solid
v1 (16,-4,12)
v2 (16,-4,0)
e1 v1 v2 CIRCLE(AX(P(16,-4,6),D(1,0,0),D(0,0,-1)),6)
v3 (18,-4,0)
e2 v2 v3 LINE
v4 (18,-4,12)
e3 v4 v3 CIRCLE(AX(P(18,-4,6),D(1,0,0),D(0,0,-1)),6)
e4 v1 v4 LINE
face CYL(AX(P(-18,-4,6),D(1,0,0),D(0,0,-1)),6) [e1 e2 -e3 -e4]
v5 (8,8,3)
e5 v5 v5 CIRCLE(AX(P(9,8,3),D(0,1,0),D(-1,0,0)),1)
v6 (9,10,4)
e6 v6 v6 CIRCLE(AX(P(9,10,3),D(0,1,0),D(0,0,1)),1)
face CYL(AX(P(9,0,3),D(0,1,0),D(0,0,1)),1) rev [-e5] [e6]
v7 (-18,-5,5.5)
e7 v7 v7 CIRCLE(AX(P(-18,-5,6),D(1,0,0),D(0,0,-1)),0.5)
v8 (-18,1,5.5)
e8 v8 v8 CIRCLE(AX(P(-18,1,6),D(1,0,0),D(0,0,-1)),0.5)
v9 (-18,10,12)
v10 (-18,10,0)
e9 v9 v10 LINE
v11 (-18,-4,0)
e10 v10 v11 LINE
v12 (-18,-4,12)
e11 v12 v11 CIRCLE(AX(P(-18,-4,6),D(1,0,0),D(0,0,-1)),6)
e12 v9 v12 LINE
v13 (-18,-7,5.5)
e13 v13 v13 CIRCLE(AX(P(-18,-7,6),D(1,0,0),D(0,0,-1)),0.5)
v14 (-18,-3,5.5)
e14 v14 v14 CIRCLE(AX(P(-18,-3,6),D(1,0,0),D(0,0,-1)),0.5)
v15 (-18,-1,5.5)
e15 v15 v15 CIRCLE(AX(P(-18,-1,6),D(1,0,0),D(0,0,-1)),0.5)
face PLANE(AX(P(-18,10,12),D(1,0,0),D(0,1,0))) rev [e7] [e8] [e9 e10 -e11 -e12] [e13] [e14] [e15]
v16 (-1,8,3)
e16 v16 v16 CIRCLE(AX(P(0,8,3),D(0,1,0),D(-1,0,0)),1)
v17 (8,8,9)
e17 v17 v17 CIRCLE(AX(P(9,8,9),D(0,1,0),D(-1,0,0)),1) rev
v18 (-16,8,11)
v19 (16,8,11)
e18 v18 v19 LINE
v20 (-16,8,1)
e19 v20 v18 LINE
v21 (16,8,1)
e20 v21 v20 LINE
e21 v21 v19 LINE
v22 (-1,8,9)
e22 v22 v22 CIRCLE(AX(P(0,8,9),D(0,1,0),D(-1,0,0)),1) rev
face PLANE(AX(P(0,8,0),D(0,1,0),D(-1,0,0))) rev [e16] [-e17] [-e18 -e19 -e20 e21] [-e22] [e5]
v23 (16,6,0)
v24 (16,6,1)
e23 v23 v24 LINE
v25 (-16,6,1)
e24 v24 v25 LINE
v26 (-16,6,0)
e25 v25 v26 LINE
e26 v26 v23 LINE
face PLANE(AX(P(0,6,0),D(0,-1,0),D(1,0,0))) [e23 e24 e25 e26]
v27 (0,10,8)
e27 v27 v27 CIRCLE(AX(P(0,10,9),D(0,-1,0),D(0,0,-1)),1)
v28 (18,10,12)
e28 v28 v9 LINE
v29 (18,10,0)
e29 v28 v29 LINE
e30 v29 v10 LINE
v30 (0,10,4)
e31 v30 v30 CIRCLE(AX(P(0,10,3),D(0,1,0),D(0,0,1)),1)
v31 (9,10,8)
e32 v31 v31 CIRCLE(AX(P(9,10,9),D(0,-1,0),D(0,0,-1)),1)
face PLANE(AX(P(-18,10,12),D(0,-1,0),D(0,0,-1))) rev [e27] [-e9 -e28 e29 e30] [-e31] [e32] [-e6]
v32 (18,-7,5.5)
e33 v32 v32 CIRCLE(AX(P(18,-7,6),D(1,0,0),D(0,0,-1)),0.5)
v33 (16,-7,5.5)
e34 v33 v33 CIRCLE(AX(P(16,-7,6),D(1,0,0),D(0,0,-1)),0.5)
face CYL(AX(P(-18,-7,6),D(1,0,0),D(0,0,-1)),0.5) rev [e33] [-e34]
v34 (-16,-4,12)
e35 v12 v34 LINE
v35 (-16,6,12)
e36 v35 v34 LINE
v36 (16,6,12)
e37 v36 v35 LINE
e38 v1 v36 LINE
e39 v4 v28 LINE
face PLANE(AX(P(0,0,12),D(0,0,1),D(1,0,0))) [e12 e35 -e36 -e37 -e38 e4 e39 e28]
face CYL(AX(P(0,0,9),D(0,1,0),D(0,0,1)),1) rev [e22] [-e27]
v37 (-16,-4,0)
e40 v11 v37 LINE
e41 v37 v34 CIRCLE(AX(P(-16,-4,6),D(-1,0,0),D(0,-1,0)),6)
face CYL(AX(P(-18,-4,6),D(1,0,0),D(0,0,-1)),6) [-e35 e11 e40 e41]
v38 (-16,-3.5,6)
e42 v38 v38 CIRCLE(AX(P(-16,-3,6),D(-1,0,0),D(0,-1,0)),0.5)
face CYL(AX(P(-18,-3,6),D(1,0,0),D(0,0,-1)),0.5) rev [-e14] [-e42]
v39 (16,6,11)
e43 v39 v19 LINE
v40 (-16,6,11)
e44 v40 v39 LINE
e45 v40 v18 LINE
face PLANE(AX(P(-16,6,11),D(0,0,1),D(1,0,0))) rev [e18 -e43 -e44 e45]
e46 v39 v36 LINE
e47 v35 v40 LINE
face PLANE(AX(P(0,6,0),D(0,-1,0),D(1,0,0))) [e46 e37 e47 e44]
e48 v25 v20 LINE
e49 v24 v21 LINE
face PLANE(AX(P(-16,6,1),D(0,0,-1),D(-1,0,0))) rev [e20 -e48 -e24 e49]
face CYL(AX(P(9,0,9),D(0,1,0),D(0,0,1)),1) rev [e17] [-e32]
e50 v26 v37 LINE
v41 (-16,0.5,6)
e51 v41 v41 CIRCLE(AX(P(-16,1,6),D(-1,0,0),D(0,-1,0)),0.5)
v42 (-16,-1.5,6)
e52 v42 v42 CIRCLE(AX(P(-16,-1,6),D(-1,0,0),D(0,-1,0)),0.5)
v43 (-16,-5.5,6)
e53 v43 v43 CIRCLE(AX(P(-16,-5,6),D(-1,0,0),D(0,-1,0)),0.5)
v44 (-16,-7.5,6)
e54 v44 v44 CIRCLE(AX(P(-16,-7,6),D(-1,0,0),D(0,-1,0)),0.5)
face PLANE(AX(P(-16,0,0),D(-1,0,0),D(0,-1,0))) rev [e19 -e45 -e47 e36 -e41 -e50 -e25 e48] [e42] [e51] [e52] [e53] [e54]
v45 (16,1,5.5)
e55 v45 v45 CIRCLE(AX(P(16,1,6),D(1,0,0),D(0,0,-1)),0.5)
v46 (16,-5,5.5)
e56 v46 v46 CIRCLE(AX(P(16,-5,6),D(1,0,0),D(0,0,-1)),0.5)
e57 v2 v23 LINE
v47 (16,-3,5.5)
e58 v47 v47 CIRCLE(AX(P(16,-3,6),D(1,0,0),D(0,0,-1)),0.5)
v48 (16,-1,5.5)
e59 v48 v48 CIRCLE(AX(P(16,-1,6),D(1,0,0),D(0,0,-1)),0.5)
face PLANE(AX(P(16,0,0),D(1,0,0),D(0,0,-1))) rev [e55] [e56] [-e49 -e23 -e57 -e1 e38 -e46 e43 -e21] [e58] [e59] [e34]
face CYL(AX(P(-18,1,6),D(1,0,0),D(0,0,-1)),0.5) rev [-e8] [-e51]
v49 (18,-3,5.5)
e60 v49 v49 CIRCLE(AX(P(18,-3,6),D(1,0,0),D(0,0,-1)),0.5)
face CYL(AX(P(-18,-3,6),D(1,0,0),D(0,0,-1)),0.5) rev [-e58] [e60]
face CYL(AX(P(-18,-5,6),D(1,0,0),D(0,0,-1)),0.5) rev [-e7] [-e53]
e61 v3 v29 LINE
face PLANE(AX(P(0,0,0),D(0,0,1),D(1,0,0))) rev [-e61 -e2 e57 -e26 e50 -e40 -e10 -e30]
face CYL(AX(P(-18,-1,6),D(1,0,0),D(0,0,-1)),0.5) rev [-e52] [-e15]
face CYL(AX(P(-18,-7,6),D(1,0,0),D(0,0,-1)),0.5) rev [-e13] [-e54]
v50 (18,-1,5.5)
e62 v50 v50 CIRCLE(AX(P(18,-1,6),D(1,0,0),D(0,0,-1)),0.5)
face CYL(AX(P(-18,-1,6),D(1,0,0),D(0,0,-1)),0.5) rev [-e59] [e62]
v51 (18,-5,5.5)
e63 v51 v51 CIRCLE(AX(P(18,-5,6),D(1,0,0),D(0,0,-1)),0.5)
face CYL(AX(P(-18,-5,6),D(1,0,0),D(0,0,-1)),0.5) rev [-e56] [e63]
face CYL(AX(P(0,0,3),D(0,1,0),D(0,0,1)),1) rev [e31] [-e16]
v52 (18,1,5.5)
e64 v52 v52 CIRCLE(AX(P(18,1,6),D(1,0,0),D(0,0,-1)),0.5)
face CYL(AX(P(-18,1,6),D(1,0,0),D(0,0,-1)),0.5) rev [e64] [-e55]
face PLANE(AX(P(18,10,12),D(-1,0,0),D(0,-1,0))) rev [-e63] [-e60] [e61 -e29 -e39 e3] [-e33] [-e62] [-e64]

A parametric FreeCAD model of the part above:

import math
import FreeCAD as App
import Part
import Sketcher
from FreeCAD import Vector
Q = App.Units.Quantity


def add_polygon(sketch, points):
    """Adds a closed chain of lines whose ends are joined by coincident constraints."""
    first, n = sketch.GeometryCount, len(points)
    for a, b in zip(points, points[1:] + points[:1]):
        sketch.addGeometry(Part.LineSegment(App.Vector(*a, 0), App.Vector(*b, 0)), False)
    for i in range(n):
        sketch.addConstraint(Sketcher.Constraint("Coincident", first + i, 2, first + (i + 1) % n, 1))

doc = App.newDocument("Part")
body = doc.addObject("PartDesign::Body", "Body")

sketch1 = body.newObject("Sketcher::SketchObject", "Sketch")
sketch1.AttachmentSupport = (doc.getObject("XY_Plane"), [""])
sketch1.MapMode = "FlatFace"
add_polygon(sketch1, [(-18, 10), (-18, -10), (18, -10), (18, 10)])
sketch1.addConstraint([
    Sketcher.Constraint("Vertical", 0),
    Sketcher.Constraint("Horizontal", 1),
    Sketcher.Constraint("Vertical", 2),
    Sketcher.Constraint("Horizontal", 3),
    Sketcher.Constraint("Symmetric", 0, 2, 2, 2, -1, 1),
    Sketcher.Constraint("DistanceX", 1, 1, 1, 2, Q("36 mm")),
    Sketcher.Constraint("DistanceY", 0, 2, 0, 1, Q("20 mm")),
])
pad1 = body.newObject("PartDesign::Pad", "Pad")
pad1.Profile = sketch1
pad1.Length = 12

sketch2 = body.newObject("Sketcher::SketchObject", "Sketch001")
sketch2.AttachmentSupport = (doc.getObject("XY_Plane"), [""])
sketch2.MapMode = "FlatFace"
sketch2.AttachmentOffset = App.Placement(Vector(0, 0, 12), App.Rotation())
add_polygon(sketch2, [(-16, 8), (-16, -8), (16, -8), (16, 8)])
sketch2.addConstraint([
    Sketcher.Constraint("Vertical", 0),
    Sketcher.Constraint("Horizontal", 1),
    Sketcher.Constraint("Vertical", 2),
    Sketcher.Constraint("Horizontal", 3),
    Sketcher.Constraint("Symmetric", 0, 2, 2, 2, -1, 1),
    Sketcher.Constraint("DistanceX", 1, 1, 1, 2, Q("32 mm")),
    Sketcher.Constraint("DistanceY", 0, 2, 0, 1, Q("16 mm")),
])
pocket1 = body.newObject("PartDesign::Pocket", "Pocket")
pocket1.Profile = sketch2
pocket1.Length = 12

sketch3 = body.newObject("Sketcher::SketchObject", "Sketch002")
sketch3.AttachmentSupport = (doc.getObject("XZ_Plane"), [""])
sketch3.MapMode = "FlatFace"
sketch3.AttachmentOffset = App.Placement(Vector(0, 0, 8), App.Rotation())
add_polygon(sketch3, [(-16, 0), (-16, 12), (16, 12), (16, 0)])
sketch3.addConstraint([
    Sketcher.Constraint("Vertical", 0),
    Sketcher.Constraint("Horizontal", 1),
    Sketcher.Constraint("Vertical", 2),
    Sketcher.Constraint("Horizontal", 3),
    Sketcher.Constraint("Symmetric", 2, 2, 3, 2, -1, 1),
    Sketcher.Constraint("DistanceX", 1, 1, 1, 2, Q("32 mm")),
    Sketcher.Constraint("DistanceY", 0, 1, 0, 2, Q("12 mm")),
])
pocket2 = body.newObject("PartDesign::Pocket", "Pocket001")
pocket2.Profile = sketch3
pocket2.Length = 12
pocket2.Reversed = True

sketch4 = body.newObject("Sketcher::SketchObject", "Sketch003")
sketch4.AttachmentSupport = (doc.getObject("YZ_Plane"), [""])
sketch4.MapMode = "FlatFace"
sketch4.AttachmentOffset = App.Placement(Vector(0, 0, 18), App.Rotation())
sketch4.addGeometry([
    Part.LineSegment(Vector(-10, 12, 0), Vector(-10, 6, 0)),
    Part.ArcOfCircle(Part.Circle(Vector(-4, 6, 0), Vector(0, 0, 1), 6), math.radians(90), math.radians(180)),
    Part.LineSegment(Vector(-4, 12, 0), Vector(-10, 12, 0)),
    Part.LineSegment(Vector(-10, 6, 0), Vector(-10, 0, 0)),
    Part.LineSegment(Vector(-10, 0, 0), Vector(-4, 0, 0)),
    Part.ArcOfCircle(Part.Circle(Vector(-4, 6, 0), Vector(0, 0, 1), 6), math.radians(180), math.radians(270)),
], False)
sketch4.addConstraint([
    Sketcher.Constraint("Tangent", 0, 2, 1, 2),
    Sketcher.Constraint("Tangent", 1, 1, 2, 1),
    Sketcher.Constraint("Coincident", 2, 2, 0, 1),
    Sketcher.Constraint("Coincident", 3, 2, 4, 1),
    Sketcher.Constraint("Tangent", 4, 2, 5, 2),
    Sketcher.Constraint("Tangent", 5, 1, 3, 1),
    Sketcher.Constraint("Vertical", 0),
    Sketcher.Constraint("Horizontal", 2),
    Sketcher.Constraint("Vertical", 3),
    Sketcher.Constraint("Horizontal", 4),
    Sketcher.Constraint("Coincident", 5, 3, 1, 3),
    Sketcher.Constraint("Equal", 1, 5),
    Sketcher.Constraint("PointOnObject", 3, 2, -1),
    Sketcher.Constraint("Radius", 1, Q("6 mm")),
    Sketcher.Constraint("DistanceX", 1, 3, -1, 1, Q("4 mm")),
])
pocket3 = body.newObject("PartDesign::Pocket", "Pocket002")
pocket3.Profile = sketch4
pocket3.Type = "ThroughAll"

sketch5 = body.newObject("Sketcher::SketchObject", "Sketch004")
sketch5.AttachmentSupport = (doc.getObject("XZ_Plane"), [""])
sketch5.MapMode = "FlatFace"
sketch5.AttachmentOffset = App.Placement(Vector(0, 0, -10), App.Rotation())
sketch5.addGeometry([
    Part.Circle(Vector(9, 3, 0), Vector(0, 0, 1), 1),
    Part.Circle(Vector(9, 9, 0), Vector(0, 0, 1), 1),
    Part.Circle(Vector(0, 9, 0), Vector(0, 0, 1), 1),
    Part.Circle(Vector(0, 3, 0), Vector(0, 0, 1), 1),
], False)
sketch5.addConstraint([
    Sketcher.Constraint("Equal", 0, 1),
    Sketcher.Constraint("Equal", 1, 2),
    Sketcher.Constraint("Equal", 2, 3),
    Sketcher.Constraint("PointOnObject", 2, 3, -2),
    Sketcher.Constraint("PointOnObject", 3, 3, -2),
    Sketcher.Constraint("Horizontal", 1, 3, 2, 3),
    Sketcher.Constraint("Horizontal", 0, 3, 3, 3),
    Sketcher.Constraint("Vertical", 0, 3, 1, 3),
    Sketcher.Constraint("Diameter", 0, Q("2 mm")),
    Sketcher.Constraint("DistanceX", -1, 1, 0, 3, Q("9 mm")),
    Sketcher.Constraint("DistanceY", -1, 1, 0, 3, Q("3 mm")),
    Sketcher.Constraint("DistanceY", -1, 1, 1, 3, Q("9 mm")),
])
pocket4 = body.newObject("PartDesign::Pocket", "Pocket003")
pocket4.Profile = sketch5
pocket4.Length = 10
pocket4.Reversed = True

sketch6 = body.newObject("Sketcher::SketchObject", "Sketch005")
sketch6.AttachmentSupport = (doc.getObject("YZ_Plane"), [""])
sketch6.MapMode = "FlatFace"
sketch6.AttachmentOffset = App.Placement(Vector(0, 0, 18), App.Rotation())
sketch6.addGeometry([
    Part.Circle(Vector(-7, 6, 0), Vector(0, 0, 1), 0.5),
    Part.Circle(Vector(-5, 6, 0), Vector(0, 0, 1), 0.5),
    Part.Circle(Vector(-3, 6, 0), Vector(0, 0, 1), 0.5),
    Part.Circle(Vector(-1, 6, 0), Vector(0, 0, 1), 0.5),
    Part.Circle(Vector(1, 6, 0), Vector(0, 0, 1), 0.5),
], False)
sketch6.addConstraint([
    Sketcher.Constraint("Equal", 0, 1),
    Sketcher.Constraint("Equal", 1, 2),
    Sketcher.Constraint("Equal", 2, 3),
    Sketcher.Constraint("Equal", 3, 4),
    Sketcher.Constraint("Symmetric", 3, 3, 4, 3, -2),
    Sketcher.Constraint("Horizontal", 0, 3, 1, 3),
    Sketcher.Constraint("Horizontal", 1, 3, 2, 3),
    Sketcher.Constraint("Horizontal", 2, 3, 3, 3),
    Sketcher.Constraint("Diameter", 0, Q("1 mm")),
    Sketcher.Constraint("DistanceX", 0, 3, -1, 1, Q("7 mm")),
    Sketcher.Constraint("DistanceY", -1, 1, 0, 3, Q("6 mm")),
    Sketcher.Constraint("DistanceX", 1, 3, -1, 1, Q("5 mm")),
    Sketcher.Constraint("DistanceX", 2, 3, -1, 1, Q("3 mm")),
    Sketcher.Constraint("DistanceX", 3, 3, -1, 1, Q("1 mm")),
])
pocket5 = body.newObject("PartDesign::Pocket", "Pocket004")
pocket5.Profile = sketch6
pocket5.Type = "ThroughAll"

sketch7 = body.newObject("Sketcher::SketchObject", "Sketch006")
sketch7.AttachmentSupport = (doc.getObject("XZ_Plane"), [""])
sketch7.MapMode = "FlatFace"
sketch7.AttachmentOffset = App.Placement(Vector(0, 0, -8), App.Rotation())
add_polygon(sketch7, [(-16, 12), (-16, 11), (16, 11), (16, 12)])
add_polygon(sketch7, [(-16, 1), (-16, 0), (16, 0), (16, 1)])
sketch7.addConstraint([
    Sketcher.Constraint("Vertical", 0),
    Sketcher.Constraint("Horizontal", 1),
    Sketcher.Constraint("Vertical", 2),
    Sketcher.Constraint("Horizontal", 3),
    Sketcher.Constraint("Vertical", 4),
    Sketcher.Constraint("Horizontal", 5),
    Sketcher.Constraint("Vertical", 6),
    Sketcher.Constraint("Horizontal", 7),
    Sketcher.Constraint("Symmetric", 4, 2, 5, 2, -1, 1),
    Sketcher.Constraint("Vertical", 3, 2, 4, 2),
    Sketcher.Constraint("Vertical", 2, 2, 5, 2),
    Sketcher.Constraint("Equal", 2, 4),
    Sketcher.Constraint("DistanceX", 1, 1, 1, 2, Q("32 mm")),
    Sketcher.Constraint("DistanceY", 0, 2, 0, 1, Q("1 mm")),
    Sketcher.Constraint("DistanceY", -1, 1, 0, 2, Q("11 mm")),
])
pad2 = body.newObject("PartDesign::Pad", "Pad001")
pad2.Profile = sketch7
pad2.Length = 2

doc.recompute()
